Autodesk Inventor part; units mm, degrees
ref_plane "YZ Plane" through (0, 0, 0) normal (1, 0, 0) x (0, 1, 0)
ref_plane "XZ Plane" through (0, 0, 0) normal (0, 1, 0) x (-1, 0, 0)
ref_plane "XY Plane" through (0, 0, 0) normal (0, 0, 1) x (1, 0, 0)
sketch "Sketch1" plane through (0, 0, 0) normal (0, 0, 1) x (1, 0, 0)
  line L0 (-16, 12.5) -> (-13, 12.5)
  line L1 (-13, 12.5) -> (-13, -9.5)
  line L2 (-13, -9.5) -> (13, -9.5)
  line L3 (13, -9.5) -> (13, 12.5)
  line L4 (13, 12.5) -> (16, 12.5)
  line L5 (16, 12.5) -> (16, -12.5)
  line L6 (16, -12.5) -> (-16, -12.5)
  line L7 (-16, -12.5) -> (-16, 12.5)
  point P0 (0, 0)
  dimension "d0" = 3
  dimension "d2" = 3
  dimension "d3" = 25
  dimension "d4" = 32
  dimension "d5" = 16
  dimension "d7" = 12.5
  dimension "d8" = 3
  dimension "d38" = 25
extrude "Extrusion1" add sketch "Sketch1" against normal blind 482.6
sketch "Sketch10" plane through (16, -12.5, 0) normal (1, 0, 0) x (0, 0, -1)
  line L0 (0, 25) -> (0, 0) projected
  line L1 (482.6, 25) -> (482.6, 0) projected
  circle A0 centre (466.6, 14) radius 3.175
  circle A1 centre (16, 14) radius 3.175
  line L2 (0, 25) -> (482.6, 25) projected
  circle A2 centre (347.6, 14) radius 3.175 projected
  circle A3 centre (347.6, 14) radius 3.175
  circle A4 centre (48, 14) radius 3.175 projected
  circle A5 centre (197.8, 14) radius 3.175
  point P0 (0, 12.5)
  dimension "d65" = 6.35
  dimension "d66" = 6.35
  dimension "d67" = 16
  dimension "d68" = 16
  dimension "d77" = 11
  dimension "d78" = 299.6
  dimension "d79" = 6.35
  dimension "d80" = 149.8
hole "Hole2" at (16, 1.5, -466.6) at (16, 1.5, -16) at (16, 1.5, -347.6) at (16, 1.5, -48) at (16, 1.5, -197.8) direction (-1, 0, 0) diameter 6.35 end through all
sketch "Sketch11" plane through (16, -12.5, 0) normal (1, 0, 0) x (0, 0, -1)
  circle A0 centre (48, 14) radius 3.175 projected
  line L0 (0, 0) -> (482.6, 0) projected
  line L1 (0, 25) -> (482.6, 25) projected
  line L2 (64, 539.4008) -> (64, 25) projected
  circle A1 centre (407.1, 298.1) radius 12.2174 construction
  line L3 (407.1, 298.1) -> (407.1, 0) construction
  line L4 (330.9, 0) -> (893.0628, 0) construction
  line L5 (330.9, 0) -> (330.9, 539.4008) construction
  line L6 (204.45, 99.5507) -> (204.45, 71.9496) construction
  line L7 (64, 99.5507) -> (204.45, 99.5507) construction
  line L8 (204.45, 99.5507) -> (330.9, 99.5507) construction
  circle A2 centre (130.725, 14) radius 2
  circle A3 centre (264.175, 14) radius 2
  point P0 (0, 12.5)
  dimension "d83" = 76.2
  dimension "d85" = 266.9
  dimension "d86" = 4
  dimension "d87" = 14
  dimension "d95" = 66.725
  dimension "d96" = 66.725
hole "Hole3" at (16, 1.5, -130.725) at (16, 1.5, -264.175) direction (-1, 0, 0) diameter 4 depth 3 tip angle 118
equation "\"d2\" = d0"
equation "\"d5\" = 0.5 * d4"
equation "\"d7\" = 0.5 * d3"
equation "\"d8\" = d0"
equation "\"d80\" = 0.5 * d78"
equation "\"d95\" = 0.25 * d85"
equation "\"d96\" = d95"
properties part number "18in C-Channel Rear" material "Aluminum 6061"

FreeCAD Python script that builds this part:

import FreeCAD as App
import Part
import Sketcher
from FreeCAD import Vector

doc = App.newDocument("Part")
params = doc.addObject("Spreadsheet::Sheet", "Params")
for row, (alias, value) in enumerate([
    ("sketch1_width", "3 mm"),
    ("sketch1_width2", "32 mm"),
    ("sketch1_height", "25 mm"),
    ("pad1_length", "482.6 mm"),
    ("sketch2_diameter", "6.35 mm"),
    ("hole_diameter", "6.35 mm"),
    ("sketch3_diameter", "4 mm"),
    ("hole2_diameter", "4 mm"),
    ("hole2_depth", "3 mm"),
], start=1):
    params.set(f"A{row}", alias)
    params.set(f"B{row}", "=" + value)
    params.setAlias(f"B{row}", alias)

body = doc.addObject("PartDesign::Body", "Body")

sketch1 = doc.addObject("Sketcher::SketchObject", "Sketch")
body.addObject(sketch1)
sketch1.AttachmentSupport = (doc.XY_Plane, [""])
sketch1.MapMode = "FlatFace"
sketch1.addGeometry(Part.LineSegment(Vector(-13, 12.5, 0), Vector(-16, 12.5, 0)), False)
sketch1.addGeometry(Part.LineSegment(Vector(-16, 12.5, 0), Vector(-16, -12.5, 0)), False)
sketch1.addGeometry(Part.LineSegment(Vector(-16, -12.5, 0), Vector(16, -12.5, 0)), False)
sketch1.addGeometry(Part.LineSegment(Vector(16, -12.5, 0), Vector(16, 12.5, 0)), False)
sketch1.addGeometry(Part.LineSegment(Vector(16, 12.5, 0), Vector(13, 12.5, 0)), False)
sketch1.addGeometry(Part.LineSegment(Vector(13, 12.5, 0), Vector(13, -9.5, 0)), False)
sketch1.addGeometry(Part.LineSegment(Vector(13, -9.5, 0), Vector(-13, -9.5, 0)), False)
sketch1.addGeometry(Part.LineSegment(Vector(-13, -9.5, 0), Vector(-13, 12.5, 0)), False)
sketch1.addConstraint(Sketcher.Constraint("Coincident", 0, 2, 1, 1))
sketch1.addConstraint(Sketcher.Constraint("Coincident", 1, 2, 2, 1))
sketch1.addConstraint(Sketcher.Constraint("Coincident", 2, 2, 3, 1))
sketch1.addConstraint(Sketcher.Constraint("Coincident", 3, 2, 4, 1))
sketch1.addConstraint(Sketcher.Constraint("Coincident", 4, 2, 5, 1))
sketch1.addConstraint(Sketcher.Constraint("Coincident", 5, 2, 6, 1))
sketch1.addConstraint(Sketcher.Constraint("Coincident", 6, 2, 7, 1))
sketch1.addConstraint(Sketcher.Constraint("Coincident", 7, 2, 0, 1))
sketch1.addConstraint(Sketcher.Constraint("Horizontal", 0))
sketch1.addConstraint(Sketcher.Constraint("Vertical", 1))
sketch1.addConstraint(Sketcher.Constraint("Horizontal", 2))
sketch1.addConstraint(Sketcher.Constraint("Vertical", 3))
sketch1.addConstraint(Sketcher.Constraint("Horizontal", 4))
sketch1.addConstraint(Sketcher.Constraint("Vertical", 5))
sketch1.addConstraint(Sketcher.Constraint("Horizontal", 6))
sketch1.addConstraint(Sketcher.Constraint("Vertical", 7))
sketch1.addConstraint(Sketcher.Constraint("Symmetric", 0, 2, 2, 2, -1, 1))
sketch1.addConstraint(Sketcher.Constraint("Symmetric", 4, 2, 7, 2, -2))
sketch1.addConstraint(Sketcher.Constraint("DistanceX", 0, 2, 0, 1, 3.0))
sketch1.addConstraint(Sketcher.Constraint("DistanceX", 2, 1, 2, 2, 32.0))
sketch1.addConstraint(Sketcher.Constraint("DistanceY", 1, 2, 1, 1, 25.0))
sketch1.addConstraint(Sketcher.Constraint("DistanceY", 2, 2, 5, 2, 3.0))
sketch1.setExpression("Constraints[18]", "Params.sketch1_width")
sketch1.setExpression("Constraints[19]", "Params.sketch1_width2")
sketch1.setExpression("Constraints[20]", "Params.sketch1_height")
pad1 = doc.addObject("PartDesign::Pad", "Pad")
body.addObject(pad1)
pad1.Profile = sketch1
pad1.setExpression("Length", "Params.pad1_length")
pad1.Reversed = True

sketch2 = doc.addObject("Sketcher::SketchObject", "Sketch001")
body.addObject(sketch2)
sketch2.AttachmentSupport = (doc.YZ_Plane, [""])
sketch2.MapMode = "FlatFace"
sketch2.AttachmentOffset = App.Placement(Vector(0, 0, 16), App.Rotation())
sketch2.addGeometry(Part.Circle(Vector(1.5, -466.6, 0), Vector(0, 0, 1), 3.2), False)
sketch2.addGeometry(Part.Circle(Vector(1.5, -16, 0), Vector(0, 0, 1), 3.2), False)
sketch2.addGeometry(Part.Circle(Vector(1.5, -347.6, 0), Vector(0, 0, 1), 3.2), False)
sketch2.addGeometry(Part.Circle(Vector(1.5, -48, 0), Vector(0, 0, 1), 3.2), False)
sketch2.addGeometry(Part.Circle(Vector(1.5, -197.8, 0), Vector(0, 0, 1), 3.2), False)
sketch2.addConstraint(Sketcher.Constraint("Equal", 0, 1))
sketch2.addConstraint(Sketcher.Constraint("Equal", 1, 2))
sketch2.addConstraint(Sketcher.Constraint("Equal", 2, 3))
sketch2.addConstraint(Sketcher.Constraint("Equal", 3, 4))
sketch2.addConstraint(Sketcher.Constraint("Vertical", 0, 3, 1, 3))
sketch2.addConstraint(Sketcher.Constraint("Vertical", 1, 3, 2, 3))
sketch2.addConstraint(Sketcher.Constraint("Vertical", 2, 3, 3, 3))
sketch2.addConstraint(Sketcher.Constraint("Vertical", 3, 3, 4, 3))
sketch2.addConstraint(Sketcher.Constraint("Diameter", 0, 6.35))
sketch2.addConstraint(Sketcher.Constraint("DistanceY", 1, 3, -1, 1, 16.0))
sketch2.addConstraint(Sketcher.Constraint("DistanceY", 3, 3, -1, 1, 48.0))
sketch2.addConstraint(Sketcher.Constraint("DistanceY", 0, 3, 2, 3, 119.0))
sketch2.addConstraint(Sketcher.Constraint("DistanceX", -1, 1, 0, 3, 1.5))
sketch2.addConstraint(Sketcher.Constraint("DistanceY", 0, 3, -1, 1, 466.6))
sketch2.addConstraint(Sketcher.Constraint("DistanceY", 4, 3, -1, 1, 197.8))
sketch2.setExpression("Constraints[8]", "Params.sketch2_diameter")
doc.recompute()
hole = doc.addObject("PartDesign::Hole", "Hole")
body.addObject(hole)
hole.Profile = sketch2
hole.ThreadType = "None"
hole.setExpression("Diameter", "Params.hole_diameter")
hole.DepthType = "ThroughAll"

sketch3 = doc.addObject("Sketcher::SketchObject", "Sketch002")
body.addObject(sketch3)
sketch3.AttachmentSupport = (doc.YZ_Plane, [""])
sketch3.MapMode = "FlatFace"
sketch3.AttachmentOffset = App.Placement(Vector(0, 0, 16), App.Rotation())
sketch3.addGeometry(Part.Circle(Vector(1.5, -130.7, 0), Vector(0, 0, 1), 2), False)
sketch3.addGeometry(Part.Circle(Vector(1.5, -264.2, 0), Vector(0, 0, 1), 2), False)
sketch3.addConstraint(Sketcher.Constraint("Equal", 0, 1))
sketch3.addConstraint(Sketcher.Constraint("Vertical", 0, 3, 1, 3))
sketch3.addConstraint(Sketcher.Constraint("Diameter", 0, 4.0))
sketch3.addConstraint(Sketcher.Constraint("DistanceX", -1, 1, 0, 3, 1.5))
sketch3.addConstraint(Sketcher.Constraint("DistanceY", 1, 3, 0, 3, 133.45))
sketch3.addConstraint(Sketcher.Constraint("DistanceY", 0, 3, -1, 1, 130.725))
sketch3.setExpression("Constraints[2]", "Params.sketch3_diameter")
doc.recompute()
hole2 = doc.addObject("PartDesign::Hole", "Hole001")
body.addObject(hole2)
hole2.Profile = sketch3
hole2.ThreadType = "None"
hole2.setExpression("Diameter", "Params.hole2_diameter")
hole2.DepthType = "Dimension"
hole2.setExpression("Depth", "Params.hole2_depth")
hole2.DrillPoint = "Angled"
hole2.DrillPointAngle = 118

doc.recompute()
